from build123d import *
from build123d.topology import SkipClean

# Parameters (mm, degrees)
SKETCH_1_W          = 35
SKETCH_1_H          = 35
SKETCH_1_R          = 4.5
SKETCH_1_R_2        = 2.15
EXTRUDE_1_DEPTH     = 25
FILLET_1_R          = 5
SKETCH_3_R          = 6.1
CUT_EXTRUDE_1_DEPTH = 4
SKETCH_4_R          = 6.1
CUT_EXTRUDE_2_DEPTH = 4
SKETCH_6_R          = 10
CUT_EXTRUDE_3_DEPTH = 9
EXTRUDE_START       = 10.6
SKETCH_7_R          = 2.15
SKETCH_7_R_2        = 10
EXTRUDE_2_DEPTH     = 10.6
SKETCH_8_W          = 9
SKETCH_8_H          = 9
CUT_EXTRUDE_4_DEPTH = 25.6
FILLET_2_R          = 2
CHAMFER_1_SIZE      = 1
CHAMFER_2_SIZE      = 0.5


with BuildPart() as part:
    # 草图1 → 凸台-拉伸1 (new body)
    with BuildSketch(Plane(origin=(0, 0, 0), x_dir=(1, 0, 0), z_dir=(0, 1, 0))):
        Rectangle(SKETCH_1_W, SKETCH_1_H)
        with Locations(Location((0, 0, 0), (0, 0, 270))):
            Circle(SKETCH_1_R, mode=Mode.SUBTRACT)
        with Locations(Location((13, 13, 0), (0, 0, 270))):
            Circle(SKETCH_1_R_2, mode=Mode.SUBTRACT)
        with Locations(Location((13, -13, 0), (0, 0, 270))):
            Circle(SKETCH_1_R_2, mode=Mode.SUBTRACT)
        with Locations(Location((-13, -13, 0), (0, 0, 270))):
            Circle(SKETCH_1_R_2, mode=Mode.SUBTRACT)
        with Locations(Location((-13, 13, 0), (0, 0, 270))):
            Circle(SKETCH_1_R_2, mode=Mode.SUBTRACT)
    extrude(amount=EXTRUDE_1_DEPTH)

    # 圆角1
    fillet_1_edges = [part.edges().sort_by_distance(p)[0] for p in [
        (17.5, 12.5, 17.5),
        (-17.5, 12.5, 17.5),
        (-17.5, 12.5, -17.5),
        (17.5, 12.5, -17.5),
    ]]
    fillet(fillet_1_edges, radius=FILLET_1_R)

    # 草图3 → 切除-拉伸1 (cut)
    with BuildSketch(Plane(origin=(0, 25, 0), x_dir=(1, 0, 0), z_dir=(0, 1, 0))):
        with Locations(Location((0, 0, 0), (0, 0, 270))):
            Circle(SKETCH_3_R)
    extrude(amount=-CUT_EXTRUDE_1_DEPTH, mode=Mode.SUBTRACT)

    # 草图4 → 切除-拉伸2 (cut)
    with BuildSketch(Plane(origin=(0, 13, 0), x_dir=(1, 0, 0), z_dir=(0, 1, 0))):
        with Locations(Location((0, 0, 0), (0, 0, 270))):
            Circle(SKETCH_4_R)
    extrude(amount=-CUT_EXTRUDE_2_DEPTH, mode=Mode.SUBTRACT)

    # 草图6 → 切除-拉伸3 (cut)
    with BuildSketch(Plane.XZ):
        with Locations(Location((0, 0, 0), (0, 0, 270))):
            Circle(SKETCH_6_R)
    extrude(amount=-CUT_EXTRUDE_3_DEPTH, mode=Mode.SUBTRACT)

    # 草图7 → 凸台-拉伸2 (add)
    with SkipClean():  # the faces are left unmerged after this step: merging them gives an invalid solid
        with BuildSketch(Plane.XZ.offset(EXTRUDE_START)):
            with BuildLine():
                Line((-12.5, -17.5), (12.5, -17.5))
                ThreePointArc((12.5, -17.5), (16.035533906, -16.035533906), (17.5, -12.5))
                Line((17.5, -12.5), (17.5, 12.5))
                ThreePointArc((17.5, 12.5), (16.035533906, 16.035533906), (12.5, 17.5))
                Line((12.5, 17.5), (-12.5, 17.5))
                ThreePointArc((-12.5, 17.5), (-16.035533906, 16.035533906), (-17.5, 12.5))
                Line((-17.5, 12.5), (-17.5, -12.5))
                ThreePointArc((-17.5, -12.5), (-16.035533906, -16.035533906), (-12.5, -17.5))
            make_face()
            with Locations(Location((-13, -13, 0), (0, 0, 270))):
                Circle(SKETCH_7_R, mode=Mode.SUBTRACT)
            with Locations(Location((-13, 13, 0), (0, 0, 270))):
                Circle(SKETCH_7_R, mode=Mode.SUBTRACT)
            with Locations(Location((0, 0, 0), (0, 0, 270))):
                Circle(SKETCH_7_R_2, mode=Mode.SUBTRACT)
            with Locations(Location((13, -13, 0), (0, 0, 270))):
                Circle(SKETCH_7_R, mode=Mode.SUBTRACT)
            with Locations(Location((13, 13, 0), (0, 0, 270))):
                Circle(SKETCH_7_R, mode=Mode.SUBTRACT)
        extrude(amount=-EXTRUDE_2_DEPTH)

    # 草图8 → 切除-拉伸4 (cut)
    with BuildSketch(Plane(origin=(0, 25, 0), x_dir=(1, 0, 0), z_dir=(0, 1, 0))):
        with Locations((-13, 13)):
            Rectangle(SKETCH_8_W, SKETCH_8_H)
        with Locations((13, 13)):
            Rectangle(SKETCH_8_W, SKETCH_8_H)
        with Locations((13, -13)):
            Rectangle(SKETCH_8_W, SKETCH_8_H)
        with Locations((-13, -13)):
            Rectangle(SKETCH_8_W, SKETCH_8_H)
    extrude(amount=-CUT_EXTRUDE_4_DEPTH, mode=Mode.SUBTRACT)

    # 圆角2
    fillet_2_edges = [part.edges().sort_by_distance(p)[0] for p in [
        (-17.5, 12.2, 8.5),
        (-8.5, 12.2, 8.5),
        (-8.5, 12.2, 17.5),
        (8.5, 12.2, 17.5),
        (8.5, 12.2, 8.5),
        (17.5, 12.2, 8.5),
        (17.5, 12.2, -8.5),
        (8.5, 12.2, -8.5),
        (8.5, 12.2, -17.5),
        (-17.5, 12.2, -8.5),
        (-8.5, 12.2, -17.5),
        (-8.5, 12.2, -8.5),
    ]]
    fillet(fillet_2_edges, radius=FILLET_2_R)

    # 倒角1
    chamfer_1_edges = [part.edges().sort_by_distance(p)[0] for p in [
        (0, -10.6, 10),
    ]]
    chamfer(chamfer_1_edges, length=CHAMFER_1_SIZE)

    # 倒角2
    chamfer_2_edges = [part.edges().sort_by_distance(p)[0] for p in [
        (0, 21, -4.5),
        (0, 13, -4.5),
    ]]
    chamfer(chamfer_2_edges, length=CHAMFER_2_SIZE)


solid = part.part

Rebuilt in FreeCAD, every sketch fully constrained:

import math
import FreeCAD as App
import Part
import Sketcher
from FreeCAD import Vector


def edges_at(feature, points):
    """Names of the edges that pass closest to the given points."""
    edges = feature.Shape.Edges
    near = lambda p: min(range(len(edges)), key=lambda i: edges[i].distToShape(Part.Vertex(*p))[0])
    return sorted({f"Edge{near(p) + 1}" for p in points})

doc = App.newDocument("Part")
body = doc.addObject("PartDesign::Body", "Body")

# Sketch on XZ plane
sketch1 = doc.addObject("Sketcher::SketchObject", "Sketch")
body.addObject(sketch1)
sketch1.AttachmentSupport = (doc.XZ_Plane, [""])
sketch1.MapMode = "FlatFace"
sketch1.addGeometry(Part.LineSegment(Vector(-17.5, -17.5, 0), Vector(-17.5, 17.5, 0)), False)
sketch1.addGeometry(Part.LineSegment(Vector(-17.5, 17.5, 0), Vector(17.5, 17.5, 0)), False)
sketch1.addGeometry(Part.LineSegment(Vector(17.5, 17.5, 0), Vector(17.5, -17.5, 0)), False)
sketch1.addGeometry(Part.LineSegment(Vector(17.5, -17.5, 0), Vector(-17.5, -17.5, 0)), False)
sketch1.addGeometry(Part.Circle(Vector(-13, 13, 0), Vector(0, 0, 1), 2.1), False)
sketch1.addGeometry(Part.Circle(Vector(0, 0, 0), Vector(0, 0, 1), 4.5), False)
sketch1.addGeometry(Part.Circle(Vector(13, 13, 0), Vector(0, 0, 1), 2.1), False)
sketch1.addGeometry(Part.Circle(Vector(-13, -13, 0), Vector(0, 0, 1), 2.1), False)
sketch1.addGeometry(Part.Circle(Vector(13, -13, 0), Vector(0, 0, 1), 2.1), False)
sketch1.addConstraint(Sketcher.Constraint("Coincident", 0, 2, 1, 1))
sketch1.addConstraint(Sketcher.Constraint("Coincident", 1, 2, 2, 1))
sketch1.addConstraint(Sketcher.Constraint("Coincident", 2, 2, 3, 1))
sketch1.addConstraint(Sketcher.Constraint("Coincident", 3, 2, 0, 1))
sketch1.addConstraint(Sketcher.Constraint("Vertical", 0))
sketch1.addConstraint(Sketcher.Constraint("Horizontal", 1))
sketch1.addConstraint(Sketcher.Constraint("Vertical", 2))
sketch1.addConstraint(Sketcher.Constraint("Horizontal", 3))
sketch1.addConstraint(Sketcher.Constraint("Coincident", 5, 3, -1, 1))
sketch1.addConstraint(Sketcher.Constraint("Equal", 4, 6))
sketch1.addConstraint(Sketcher.Constraint("Equal", 6, 7))
sketch1.addConstraint(Sketcher.Constraint("Equal", 7, 8))
sketch1.addConstraint(Sketcher.Constraint("Symmetric", 6, 3, 7, 3, -1, 1))
sketch1.addConstraint(Sketcher.Constraint("Symmetric", 4, 3, 8, 3, -1, 1))
sketch1.addConstraint(Sketcher.Constraint("Symmetric", 0, 2, 2, 2, -1, 1))
sketch1.addConstraint(Sketcher.Constraint("Symmetric", 4, 3, 6, 3, -2))
sketch1.addConstraint(Sketcher.Constraint("Equal", 3, 0))
sketch1.addConstraint(Sketcher.Constraint("Diameter", 5, 9.0))
sketch1.addConstraint(Sketcher.Constraint("Diameter", 4, 4.3))
sketch1.addConstraint(Sketcher.Constraint("DistanceX", 1, 1, 1, 2, 35.0))
sketch1.addConstraint(Sketcher.Constraint("DistanceX", 4, 3, -1, 1, 13.0))
sketch1.addConstraint(Sketcher.Constraint("DistanceY", -1, 1, 4, 3, 13.0))
pad1 = doc.addObject("PartDesign::Pad", "Pad")
body.addObject(pad1)
pad1.Profile = sketch1
pad1.Length = 25
pad1.Reversed = True
doc.recompute()

fillet = doc.addObject("PartDesign::Fillet", "Fillet")
body.addObject(fillet)
fillet.Base = (pad1, edges_at(pad1, [
    (17.5, 12.5, 17.5),
    (-17.5, 12.5, 17.5),
    (-17.5, 12.5, -17.5),
    (17.5, 12.5, -17.5),
]))
fillet.Radius = 5

# Sketch on XZ plane
sketch2 = doc.addObject("Sketcher::SketchObject", "Sketch001")
body.addObject(sketch2)
sketch2.AttachmentSupport = (doc.XZ_Plane, [""])
sketch2.MapMode = "FlatFace"
sketch2.AttachmentOffset = App.Placement(Vector(0, 0, -25), App.Rotation())
sketch2.addGeometry(Part.Circle(Vector(0, 0, 0), Vector(0, 0, 1), 6), False)
sketch2.addConstraint(Sketcher.Constraint("Coincident", 0, 3, -1, 1))
sketch2.addConstraint(Sketcher.Constraint("Diameter", 0, 12.2))
pocket1 = doc.addObject("PartDesign::Pocket", "Pocket")
body.addObject(pocket1)
pocket1.Profile = sketch2
pocket1.Length = 4
pocket1.Reversed = True

# Sketch on XZ plane
sketch3 = doc.addObject("Sketcher::SketchObject", "Sketch002")
body.addObject(sketch3)
sketch3.AttachmentSupport = (doc.XZ_Plane, [""])
sketch3.MapMode = "FlatFace"
sketch3.AttachmentOffset = App.Placement(Vector(0, 0, -13), App.Rotation())
sketch3.addGeometry(Part.Circle(Vector(0, 0, 0), Vector(0, 0, 1), 6), False)
sketch3.addConstraint(Sketcher.Constraint("Coincident", 0, 3, -1, 1))
sketch3.addConstraint(Sketcher.Constraint("Diameter", 0, 12.2))
pocket2 = doc.addObject("PartDesign::Pocket", "Pocket001")
body.addObject(pocket2)
pocket2.Profile = sketch3
pocket2.Length = 4
pocket2.Reversed = True

# Sketch on XZ plane
sketch4 = doc.addObject("Sketcher::SketchObject", "Sketch003")
body.addObject(sketch4)
sketch4.AttachmentSupport = (doc.XZ_Plane, [""])
sketch4.MapMode = "FlatFace"
sketch4.addGeometry(Part.Circle(Vector(0, 0, 0), Vector(0, 0, 1), 10), False)
sketch4.addConstraint(Sketcher.Constraint("Coincident", 0, 3, -1, 1))
sketch4.addConstraint(Sketcher.Constraint("Diameter", 0, 20.0))
pocket3 = doc.addObject("PartDesign::Pocket", "Pocket002")
body.addObject(pocket3)
pocket3.Profile = sketch4
pocket3.Length = 9

# Sketch on XZ plane
sketch5 = doc.addObject("Sketcher::SketchObject", "Sketch004")
body.addObject(sketch5)
sketch5.AttachmentSupport = (doc.XZ_Plane, [""])
sketch5.MapMode = "FlatFace"
sketch5.AttachmentOffset = App.Placement(Vector(0, 0, 10.6), App.Rotation())
sketch5.addGeometry(Part.LineSegment(Vector(-12.5, -17.5, 0), Vector(12.5, -17.5, 0)), False)
sketch5.addGeometry(Part.ArcOfCircle(Part.Circle(Vector(12.5, -12.5, 0), Vector(0, 0, 1), 5), math.radians(-90), math.radians(0)), False)
sketch5.addGeometry(Part.LineSegment(Vector(17.5, -12.5, 0), Vector(17.5, 12.5, 0)), False)
sketch5.addGeometry(Part.ArcOfCircle(Part.Circle(Vector(12.5, 12.5, 0), Vector(0, 0, 1), 5), math.radians(0), math.radians(90)), False)
sketch5.addGeometry(Part.LineSegment(Vector(12.5, 17.5, 0), Vector(-12.5, 17.5, 0)), False)
sketch5.addGeometry(Part.ArcOfCircle(Part.Circle(Vector(-12.5, 12.5, 0), Vector(0, 0, 1), 5), math.radians(90), math.radians(180)), False)
sketch5.addGeometry(Part.LineSegment(Vector(-17.5, 12.5, 0), Vector(-17.5, -12.5, 0)), False)
sketch5.addGeometry(Part.ArcOfCircle(Part.Circle(Vector(-12.5, -12.5, 0), Vector(0, 0, 1), 5), math.radians(180), math.radians(270)), False)
sketch5.addGeometry(Part.Circle(Vector(-13, -13, 0), Vector(0, 0, 1), 2.1), False)
sketch5.addGeometry(Part.Circle(Vector(0, 0, 0), Vector(0, 0, 1), 10), False)
sketch5.addGeometry(Part.Circle(Vector(13, -13, 0), Vector(0, 0, 1), 2.1), False)
sketch5.addGeometry(Part.Circle(Vector(-13, 13, 0), Vector(0, 0, 1), 2.1), False)
sketch5.addGeometry(Part.Circle(Vector(13, 13, 0), Vector(0, 0, 1), 2.1), False)
sketch5.addConstraint(Sketcher.Constraint("Tangent", 0, 2, 1, 1))
sketch5.addConstraint(Sketcher.Constraint("Tangent", 1, 2, 2, 1))
sketch5.addConstraint(Sketcher.Constraint("Tangent", 2, 2, 3, 1))
sketch5.addConstraint(Sketcher.Constraint("Tangent", 3, 2, 4, 1))
sketch5.addConstraint(Sketcher.Constraint("Tangent", 4, 2, 5, 1))
sketch5.addConstraint(Sketcher.Constraint("Tangent", 5, 2, 6, 1))
sketch5.addConstraint(Sketcher.Constraint("Tangent", 6, 2, 7, 1))
sketch5.addConstraint(Sketcher.Constraint("Tangent", 7, 2, 0, 1))
sketch5.addConstraint(Sketcher.Constraint("Horizontal", 0))
sketch5.addConstraint(Sketcher.Constraint("Vertical", 2))
sketch5.addConstraint(Sketcher.Constraint("Horizontal", 4))
sketch5.addConstraint(Sketcher.Constraint("Vertical", 6))
sketch5.addConstraint(Sketcher.Constraint("Coincident", 9, 3, -1, 1))
sketch5.addConstraint(Sketcher.Constraint("Equal", 1, 3))
sketch5.addConstraint(Sketcher.Constraint("Equal", 3, 5))
sketch5.addConstraint(Sketcher.Constraint("Equal", 5, 7))
sketch5.addConstraint(Sketcher.Constraint("Equal", 8, 10))
sketch5.addConstraint(Sketcher.Constraint("Equal", 10, 11))
sketch5.addConstraint(Sketcher.Constraint("Equal", 11, 12))
sketch5.addConstraint(Sketcher.Constraint("Symmetric", 1, 3, 5, 3, -1, 1))
sketch5.addConstraint(Sketcher.Constraint("Symmetric", 10, 3, 11, 3, -1, 1))
sketch5.addConstraint(Sketcher.Constraint("Symmetric", 8, 3, 12, 3, -1, 1))
sketch5.addConstraint(Sketcher.Constraint("Symmetric", 8, 3, 10, 3, -2))
sketch5.addConstraint(Sketcher.Constraint("Equal", 4, 2))
sketch5.addConstraint(Sketcher.Constraint("Diameter", 9, 20.0))
sketch5.addConstraint(Sketcher.Constraint("Radius", 1, 5.0))
sketch5.addConstraint(Sketcher.Constraint("Diameter", 8, 4.3))
sketch5.addConstraint(Sketcher.Constraint("DistanceX", 0, 1, 0, 2, 25.0))
sketch5.addConstraint(Sketcher.Constraint("DistanceX", 8, 3, -1, 1, 13.0))
sketch5.addConstraint(Sketcher.Constraint("DistanceY", 8, 3, -1, 1, 13.0))
pad2 = doc.addObject("PartDesign::Pad", "Pad001")
body.addObject(pad2)
pad2.Profile = sketch5
pad2.Length = 10.6
pad2.Reversed = True

# Sketch on XZ plane
sketch6 = doc.addObject("Sketcher::SketchObject", "Sketch005")
body.addObject(sketch6)
sketch6.AttachmentSupport = (doc.XZ_Plane, [""])
sketch6.MapMode = "FlatFace"
sketch6.AttachmentOffset = App.Placement(Vector(0, 0, -25), App.Rotation())
sketch6.addGeometry(Part.LineSegment(Vector(-18, -18, 0), Vector(-18, -8, 0)), False)
sketch6.addGeometry(Part.LineSegment(Vector(-18, -8, 0), Vector(-8, -8, 0)), False)
sketch6.addGeometry(Part.LineSegment(Vector(-8, -8, 0), Vector(-8, -18, 0)), False)
sketch6.addGeometry(Part.LineSegment(Vector(-8, -18, 0), Vector(-18, -18, 0)), False)
sketch6.addGeometry(Part.LineSegment(Vector(8, -18, 0), Vector(8, -8, 0)), False)
sketch6.addGeometry(Part.LineSegment(Vector(8, -8, 0), Vector(18, -8, 0)), False)
sketch6.addGeometry(Part.LineSegment(Vector(18, -8, 0), Vector(18, -18, 0)), False)
sketch6.addGeometry(Part.LineSegment(Vector(18, -18, 0), Vector(8, -18, 0)), False)
sketch6.addGeometry(Part.LineSegment(Vector(8, 8, 0), Vector(8, 18, 0)), False)
sketch6.addGeometry(Part.LineSegment(Vector(8, 18, 0), Vector(18, 18, 0)), False)
sketch6.addGeometry(Part.LineSegment(Vector(18, 18, 0), Vector(18, 8, 0)), False)
sketch6.addGeometry(Part.LineSegment(Vector(18, 8, 0), Vector(8, 8, 0)), False)
sketch6.addGeometry(Part.LineSegment(Vector(-18, 8, 0), Vector(-18, 18, 0)), False)
sketch6.addGeometry(Part.LineSegment(Vector(-18, 18, 0), Vector(-8, 18, 0)), False)
sketch6.addGeometry(Part.LineSegment(Vector(-8, 18, 0), Vector(-8, 8, 0)), False)
sketch6.addGeometry(Part.LineSegment(Vector(-8, 8, 0), Vector(-18, 8, 0)), False)
sketch6.addConstraint(Sketcher.Constraint("Coincident", 0, 2, 1, 1))
sketch6.addConstraint(Sketcher.Constraint("Coincident", 1, 2, 2, 1))
sketch6.addConstraint(Sketcher.Constraint("Coincident", 2, 2, 3, 1))
sketch6.addConstraint(Sketcher.Constraint("Coincident", 3, 2, 0, 1))
sketch6.addConstraint(Sketcher.Constraint("Coincident", 4, 2, 5, 1))
sketch6.addConstraint(Sketcher.Constraint("Coincident", 5, 2, 6, 1))
sketch6.addConstraint(Sketcher.Constraint("Coincident", 6, 2, 7, 1))
sketch6.addConstraint(Sketcher.Constraint("Coincident", 7, 2, 4, 1))
sketch6.addConstraint(Sketcher.Constraint("Coincident", 8, 2, 9, 1))
sketch6.addConstraint(Sketcher.Constraint("Coincident", 9, 2, 10, 1))
sketch6.addConstraint(Sketcher.Constraint("Coincident", 10, 2, 11, 1))
sketch6.addConstraint(Sketcher.Constraint("Coincident", 11, 2, 8, 1))
sketch6.addConstraint(Sketcher.Constraint("Coincident", 12, 2, 13, 1))
sketch6.addConstraint(Sketcher.Constraint("Coincident", 13, 2, 14, 1))
sketch6.addConstraint(Sketcher.Constraint("Coincident", 14, 2, 15, 1))
sketch6.addConstraint(Sketcher.Constraint("Coincident", 15, 2, 12, 1))
sketch6.addConstraint(Sketcher.Constraint("Vertical", 0))
sketch6.addConstraint(Sketcher.Constraint("Horizontal", 1))
sketch6.addConstraint(Sketcher.Constraint("Vertical", 2))
sketch6.addConstraint(Sketcher.Constraint("Horizontal", 3))
sketch6.addConstraint(Sketcher.Constraint("Vertical", 4))
sketch6.addConstraint(Sketcher.Constraint("Horizontal", 5))
sketch6.addConstraint(Sketcher.Constraint("Vertical", 6))
sketch6.addConstraint(Sketcher.Constraint("Horizontal", 7))
sketch6.addConstraint(Sketcher.Constraint("Vertical", 8))
sketch6.addConstraint(Sketcher.Constraint("Horizontal", 9))
sketch6.addConstraint(Sketcher.Constraint("Vertical", 10))
sketch6.addConstraint(Sketcher.Constraint("Horizontal", 11))
sketch6.addConstraint(Sketcher.Constraint("Vertical", 12))
sketch6.addConstraint(Sketcher.Constraint("Horizontal", 13))
sketch6.addConstraint(Sketcher.Constraint("Vertical", 14))
sketch6.addConstraint(Sketcher.Constraint("Horizontal", 15))
sketch6.addConstraint(Sketcher.Constraint("Symmetric", 2, 2, 8, 2, -1, 1))
sketch6.addConstraint(Sketcher.Constraint("Symmetric", 0, 2, 10, 2, -1, 1))
sketch6.addConstraint(Sketcher.Constraint("Symmetric", 6, 2, 12, 2, -1, 1))
sketch6.addConstraint(Sketcher.Constraint("Symmetric", 4, 2, 14, 2, -1, 1))
sketch6.addConstraint(Sketcher.Constraint("Symmetric", 1, 2, 4, 2, -2))
sketch6.addConstraint(Sketcher.Constraint("Symmetric", 3, 2, 6, 2, -2))
sketch6.addConstraint(Sketcher.Constraint("Equal", 15, 0))
sketch6.addConstraint(Sketcher.Constraint("DistanceX", 1, 1, 1, 2, 9.0))
sketch6.addConstraint(Sketcher.Constraint("DistanceX", 1, 2, 4, 2, 17.0))
sketch6.addConstraint(Sketcher.Constraint("DistanceY", 4, 2, 8, 2, 26.0))
pocket4 = doc.addObject("PartDesign::Pocket", "Pocket003")
body.addObject(pocket4)
pocket4.Profile = sketch6
pocket4.Length = 25.6
pocket4.Reversed = True
doc.recompute()

fillet2 = doc.addObject("PartDesign::Fillet", "Fillet001")
body.addObject(fillet2)
fillet2.Base = (pocket4, edges_at(pocket4, [
    (-17.5, 12.2, 8.5),
    (-8.5, 12.2, 8.5),
    (-8.5, 12.2, 17.5),
    (8.5, 12.2, 17.5),
    (8.5, 12.2, 8.5),
    (17.5, 12.2, 8.5),
    (17.5, 12.2, -8.5),
    (8.5, 12.2, -8.5),
    (8.5, 12.2, -17.5),
    (-17.5, 12.2, -8.5),
    (-8.5, 12.2, -17.5),
    (-8.5, 12.2, -8.5),
]))
fillet2.Radius = 2
doc.recompute()

chamfer = doc.addObject("PartDesign::Chamfer", "Chamfer")
body.addObject(chamfer)
chamfer.Base = (fillet2, edges_at(fillet2, [(0, -10.6, 10)]))
chamfer.Size = 1
doc.recompute()

chamfer2 = doc.addObject("PartDesign::Chamfer", "Chamfer001")
body.addObject(chamfer2)
chamfer2.Base = (chamfer, edges_at(chamfer, [(0, 21, -4.5), (0, 13, -4.5)]))
chamfer2.Size = 0.5

doc.recompute()
